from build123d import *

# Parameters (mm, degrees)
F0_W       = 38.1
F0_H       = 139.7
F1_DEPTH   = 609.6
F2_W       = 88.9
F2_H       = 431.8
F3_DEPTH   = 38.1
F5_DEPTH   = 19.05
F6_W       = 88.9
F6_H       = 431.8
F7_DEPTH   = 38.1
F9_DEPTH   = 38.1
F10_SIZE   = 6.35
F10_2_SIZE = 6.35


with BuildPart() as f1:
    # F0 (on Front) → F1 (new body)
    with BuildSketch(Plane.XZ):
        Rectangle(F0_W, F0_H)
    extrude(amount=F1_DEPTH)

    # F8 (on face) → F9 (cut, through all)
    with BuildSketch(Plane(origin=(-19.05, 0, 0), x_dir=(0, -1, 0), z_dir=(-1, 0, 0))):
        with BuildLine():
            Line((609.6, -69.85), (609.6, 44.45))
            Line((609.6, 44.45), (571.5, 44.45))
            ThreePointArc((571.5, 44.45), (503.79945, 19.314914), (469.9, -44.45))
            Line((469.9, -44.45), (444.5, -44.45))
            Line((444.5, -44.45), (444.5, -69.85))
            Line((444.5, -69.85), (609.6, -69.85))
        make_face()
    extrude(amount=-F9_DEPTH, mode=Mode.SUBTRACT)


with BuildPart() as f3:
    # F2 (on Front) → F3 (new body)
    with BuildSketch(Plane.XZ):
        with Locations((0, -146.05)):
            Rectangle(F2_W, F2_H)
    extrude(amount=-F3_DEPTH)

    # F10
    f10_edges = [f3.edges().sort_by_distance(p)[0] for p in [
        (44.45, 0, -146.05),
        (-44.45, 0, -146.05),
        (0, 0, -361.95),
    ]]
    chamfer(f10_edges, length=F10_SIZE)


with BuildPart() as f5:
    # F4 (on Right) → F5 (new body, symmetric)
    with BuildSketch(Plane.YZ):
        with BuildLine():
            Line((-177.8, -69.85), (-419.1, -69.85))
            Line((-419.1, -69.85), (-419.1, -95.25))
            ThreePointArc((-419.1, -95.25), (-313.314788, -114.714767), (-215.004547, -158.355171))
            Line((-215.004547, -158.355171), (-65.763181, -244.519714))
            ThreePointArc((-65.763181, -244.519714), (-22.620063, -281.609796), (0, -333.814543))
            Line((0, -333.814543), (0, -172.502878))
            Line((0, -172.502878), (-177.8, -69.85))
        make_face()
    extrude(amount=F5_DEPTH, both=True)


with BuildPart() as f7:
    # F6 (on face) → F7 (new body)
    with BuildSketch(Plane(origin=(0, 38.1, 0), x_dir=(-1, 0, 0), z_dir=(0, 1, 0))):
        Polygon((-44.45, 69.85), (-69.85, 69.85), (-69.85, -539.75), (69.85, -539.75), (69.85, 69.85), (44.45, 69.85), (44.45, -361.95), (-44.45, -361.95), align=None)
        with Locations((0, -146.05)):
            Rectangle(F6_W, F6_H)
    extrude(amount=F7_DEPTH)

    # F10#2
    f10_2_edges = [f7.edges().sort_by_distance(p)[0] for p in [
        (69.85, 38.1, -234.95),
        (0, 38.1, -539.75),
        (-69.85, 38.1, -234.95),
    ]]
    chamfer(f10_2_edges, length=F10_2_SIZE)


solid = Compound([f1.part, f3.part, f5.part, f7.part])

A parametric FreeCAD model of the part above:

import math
import FreeCAD as App
import Part
import Sketcher
Q = App.Units.Quantity


def edges_at(feature, points):
    """Names of the edges that pass closest to the given points."""
    edges = feature.Shape.Edges
    near = lambda p: min(range(len(edges)), key=lambda i: edges[i].distToShape(Part.Vertex(*p))[0])
    return sorted({f"Edge{near(p) + 1}" for p in points})

doc = App.newDocument("Part")
body = doc.addObject("PartDesign::Body", "Body")

# Sketch on XZ plane
sketch1 = body.newObject("Sketcher::SketchObject", "Sketch")
sketch1.AttachmentSupport = (doc.getObject("XZ_Plane"), [""])
sketch1.MapMode = "FlatFace"
sketch1.addGeometry([
    Part.LineSegment(App.Vector(-19, 70, 0), App.Vector(-19, -70, 0)),
    Part.LineSegment(App.Vector(-19, -70, 0), App.Vector(19, -70, 0)),
    Part.LineSegment(App.Vector(19, -70, 0), App.Vector(19, 70, 0)),
    Part.LineSegment(App.Vector(19, 70, 0), App.Vector(-19, 70, 0)),
], False)
sketch1.addConstraint([
    Sketcher.Constraint("Coincident", 0, 2, 1, 1),
    Sketcher.Constraint("Coincident", 1, 2, 2, 1),
    Sketcher.Constraint("Coincident", 2, 2, 3, 1),
    Sketcher.Constraint("Coincident", 3, 2, 0, 1),
    Sketcher.Constraint("Vertical", 0),
    Sketcher.Constraint("Horizontal", 1),
    Sketcher.Constraint("Vertical", 2),
    Sketcher.Constraint("Horizontal", 3),
    Sketcher.Constraint("Symmetric", 0, 2, 2, 2, -1, 1),
    Sketcher.Constraint("DistanceX", 1, 1, 1, 2, Q("1.5 in")),
    Sketcher.Constraint("DistanceY", 0, 2, 0, 1, Q("5.5 in")),
])
pad1 = body.newObject("PartDesign::Pad", "Pad")
pad1.Profile = sketch1
pad1.Length = Q("24 in")

# Sketch on YZ plane
sketch2 = body.newObject("Sketcher::SketchObject", "Sketch001")
sketch2.AttachmentSupport = (doc.getObject("YZ_Plane"), [""])
sketch2.MapMode = "FlatFace"
sketch2.AttachmentOffset = App.Placement(App.Vector(0, 0, -0.75 * 25.4), App.Rotation())
sketch2.addGeometry([
    Part.LineSegment(App.Vector(-610, -70, 0), App.Vector(-610, 44, 0)),  # 0
    Part.LineSegment(App.Vector(-610, 44, 0), App.Vector(-572, 44, 0)),  # 1
    Part.ArcOfCircle(Part.Circle(App.Vector(-571, -57, 0), App.Vector(0, 0, 1), 102), math.radians(7), math.radians(90)),  # 2
    Part.LineSegment(App.Vector(-470, -44, 0), App.Vector(-444, -44, 0)),  # 3
    Part.LineSegment(App.Vector(-444, -44, 0), App.Vector(-444, -70, 0)),  # 4
    Part.LineSegment(App.Vector(-444, -70, 0), App.Vector(-610, -70, 0)),  # 5
], False)
sketch2.addConstraint([
    Sketcher.Constraint("Coincident", 0, 2, 1, 1),
    Sketcher.Constraint("Coincident", 1, 2, 2, 2),
    Sketcher.Constraint("Coincident", 2, 1, 3, 1),
    Sketcher.Constraint("Coincident", 3, 2, 4, 1),
    Sketcher.Constraint("Coincident", 4, 2, 5, 1),
    Sketcher.Constraint("Coincident", 5, 2, 0, 1),
    Sketcher.Constraint("Vertical", 0),
    Sketcher.Constraint("Horizontal", 1),
    Sketcher.Constraint("Horizontal", 3),
    Sketcher.Constraint("Vertical", 4),
    Sketcher.Constraint("Horizontal", 5),
    Sketcher.Constraint("Equal", 3, 4),
    Sketcher.Constraint("Radius", 2, Q("4 in")),
    Sketcher.Constraint("DistanceX", 3, 1, 3, 2, Q("1 in")),
    Sketcher.Constraint("DistanceX", 1, 1, 1, 2, Q("1.5 in")),
    Sketcher.Constraint("DistanceX", 5, 2, 5, 1, Q("6.5 in")),
    Sketcher.Constraint("DistanceY", 0, 1, 0, 2, Q("4.5 in")),
    Sketcher.Constraint("DistanceX", 0, 2, -1, 1, Q("24 in")),
    Sketcher.Constraint("DistanceY", -1, 1, 0, 2, Q("1.75 in")),
])
pocket1 = body.newObject("PartDesign::Pocket", "Pocket")
pocket1.Profile = sketch2
pocket1.Type = "ThroughAll"
pocket1.Reversed = True
body2 = doc.addObject("PartDesign::Body", "Body001")

# Sketch on XZ plane
sketch3 = body2.newObject("Sketcher::SketchObject", "Sketch002")
sketch3.AttachmentSupport = (doc.getObject("XZ_Plane001"), [""])
sketch3.MapMode = "FlatFace"
sketch3.addGeometry([
    Part.LineSegment(App.Vector(-44, 70, 0), App.Vector(-44, -362, 0)),
    Part.LineSegment(App.Vector(-44, -362, 0), App.Vector(44, -362, 0)),
    Part.LineSegment(App.Vector(44, -362, 0), App.Vector(44, 70, 0)),
    Part.LineSegment(App.Vector(44, 70, 0), App.Vector(-44, 70, 0)),
], False)
sketch3.addConstraint([
    Sketcher.Constraint("Coincident", 0, 2, 1, 1),
    Sketcher.Constraint("Coincident", 1, 2, 2, 1),
    Sketcher.Constraint("Coincident", 2, 2, 3, 1),
    Sketcher.Constraint("Coincident", 3, 2, 0, 1),
    Sketcher.Constraint("Vertical", 0),
    Sketcher.Constraint("Horizontal", 1),
    Sketcher.Constraint("Vertical", 2),
    Sketcher.Constraint("Horizontal", 3),
    Sketcher.Constraint("DistanceY", 0, 2, 0, 1, Q("17 in")),
    Sketcher.Constraint("DistanceX", 1, 1, 1, 2, Q("3.5 in")),
    Sketcher.Constraint("DistanceX", 0, 2, -1, 1, Q("1.75 in")),
    Sketcher.Constraint("DistanceY", 0, 2, -1, 1, Q("14.25 in")),
])
pad2 = body2.newObject("PartDesign::Pad", "Pad001")
pad2.Profile = sketch3
pad2.Length = Q("1.5 in")
pad2.Reversed = True
doc.recompute()

chamfer = body2.newObject("PartDesign::Chamfer", "Chamfer")
chamfer.Base = (pad2, edges_at(pad2, [(44.45, 0, -146.05), (-44.45, 0, -146.05), (0, 0, -361.95)]))
chamfer.Size = Q("0.25 in")
body3 = doc.addObject("PartDesign::Body", "Body002")

# Sketch on YZ plane
sketch4 = body3.newObject("Sketcher::SketchObject", "Sketch003")
sketch4.AttachmentSupport = (doc.getObject("YZ_Plane002"), [""])
sketch4.MapMode = "FlatFace"
sketch4.addGeometry([
    Part.LineSegment(App.Vector(-178, -70, 0), App.Vector(-419, -70, 0)),  # 0
    Part.LineSegment(App.Vector(-419, -70, 0), App.Vector(-419, -95, 0)),  # 1
    Part.ArcOfCircle(Part.Circle(App.Vector(-448, -552, 0), App.Vector(0, 0, 1), 457), math.radians(59), math.radians(86)),  # 2
    Part.LineSegment(App.Vector(-215, -158, 0), App.Vector(-66, -245, 0)),  # 3
    Part.ArcOfCircle(Part.Circle(App.Vector(-125, -357, 0), App.Vector(0, 0, 1), 127), math.radians(10), math.radians(62)),  # 4
    Part.LineSegment(App.Vector(0, -334, 0), App.Vector(0, -173, 0)),  # 5
    Part.LineSegment(App.Vector(0, -173, 0), App.Vector(-178, -70, 0)),  # 6
], False)
sketch4.addConstraint([
    Sketcher.Constraint("Coincident", 0, 2, 1, 1),
    Sketcher.Constraint("Coincident", 1, 2, 2, 2),
    Sketcher.Constraint("Coincident", 2, 1, 3, 1),
    Sketcher.Constraint("Coincident", 3, 2, 4, 2),
    Sketcher.Constraint("Coincident", 4, 1, 5, 1),
    Sketcher.Constraint("Coincident", 5, 2, 6, 1),
    Sketcher.Constraint("Coincident", 6, 2, 0, 1),
    Sketcher.Constraint("Horizontal", 0),
    Sketcher.Constraint("Vertical", 1),
    Sketcher.Constraint("Vertical", 5),
    Sketcher.Constraint("PointOnObject", 4, 1, -2),
    Sketcher.Constraint("Parallel", 3, 6),
    Sketcher.Constraint("Radius", 4, Q("5.0000001 in")),
    Sketcher.Constraint("DistanceY", 1, 2, 1, 1, Q("1 in")),
    Sketcher.Constraint("DistanceX", 0, 2, 0, 1, Q("9.5 in")),
    Sketcher.Constraint("DistanceX", 6, 2, -1, 1, Q("7 in")),
    Sketcher.Constraint("Angle", 3, Q("-30 deg")),
    Sketcher.Constraint("DistanceY", 0, 2, -1, 1, Q("2.75 in")),
    Sketcher.Constraint("Radius", 2, Q("457.200007 mm")),
    Sketcher.Constraint("DistanceY", 5, 1, 5, 2, Q("161.311665 mm")),
    Sketcher.Constraint("DistanceX", 2, 3, -1, 1, Q("448.370079 mm")),
    Sketcher.Constraint("DistanceY", 2, 1, -1, 1, Q("158.355171 mm")),
    Sketcher.Constraint("DistanceX", 3, 2, -1, 1, Q("65.763181 mm")),
])
pad3 = body3.newObject("PartDesign::Pad", "Pad002")
pad3.Profile = sketch4
pad3.Length = Q("1.5 in")
pad3.Midplane = True
body4 = doc.addObject("PartDesign::Body", "Body003")

# Sketch on XZ plane
sketch5 = body4.newObject("Sketcher::SketchObject", "Sketch004")
sketch5.AttachmentSupport = (doc.getObject("XZ_Plane003"), [""])
sketch5.MapMode = "FlatFace"
sketch5.AttachmentOffset = App.Placement(App.Vector(0, 0, -1.5 * 25.4), App.Rotation())
sketch5.addGeometry([
    Part.LineSegment(App.Vector(70, 70, 0), App.Vector(70, -540, 0)),
    Part.LineSegment(App.Vector(70, -540, 0), App.Vector(-70, -540, 0)),
    Part.LineSegment(App.Vector(-70, -540, 0), App.Vector(-70, 70, 0)),
    Part.LineSegment(App.Vector(-70, 70, 0), App.Vector(70, 70, 0)),
], False)
sketch5.addConstraint([
    Sketcher.Constraint("Coincident", 0, 2, 1, 1),
    Sketcher.Constraint("Coincident", 1, 2, 2, 1),
    Sketcher.Constraint("Coincident", 2, 2, 3, 1),
    Sketcher.Constraint("Coincident", 3, 2, 0, 1),
    Sketcher.Constraint("Vertical", 0),
    Sketcher.Constraint("Horizontal", 1),
    Sketcher.Constraint("Vertical", 2),
    Sketcher.Constraint("Horizontal", 3),
    Sketcher.Constraint("DistanceY", 0, 2, 0, 1, Q("24 in")),
    Sketcher.Constraint("DistanceX", 1, 2, 1, 1, Q("5.5 in")),
    Sketcher.Constraint("DistanceX", -1, 1, 0, 2, Q("2.75 in")),
    Sketcher.Constraint("DistanceY", 0, 2, -1, 1, Q("21.25 in")),
])
pad4 = body4.newObject("PartDesign::Pad", "Pad003")
pad4.Profile = sketch5
pad4.Length = Q("1.5 in")
pad4.Reversed = True
doc.recompute()

chamfer2 = body4.newObject("PartDesign::Chamfer", "Chamfer001")
chamfer2.Base = (pad4, edges_at(pad4, [(69.85, 38.1, -234.95), (0, 38.1, -539.75), (-69.85, 38.1, -234.95)]))
chamfer2.Size = Q("0.25 in")

doc.recompute()
